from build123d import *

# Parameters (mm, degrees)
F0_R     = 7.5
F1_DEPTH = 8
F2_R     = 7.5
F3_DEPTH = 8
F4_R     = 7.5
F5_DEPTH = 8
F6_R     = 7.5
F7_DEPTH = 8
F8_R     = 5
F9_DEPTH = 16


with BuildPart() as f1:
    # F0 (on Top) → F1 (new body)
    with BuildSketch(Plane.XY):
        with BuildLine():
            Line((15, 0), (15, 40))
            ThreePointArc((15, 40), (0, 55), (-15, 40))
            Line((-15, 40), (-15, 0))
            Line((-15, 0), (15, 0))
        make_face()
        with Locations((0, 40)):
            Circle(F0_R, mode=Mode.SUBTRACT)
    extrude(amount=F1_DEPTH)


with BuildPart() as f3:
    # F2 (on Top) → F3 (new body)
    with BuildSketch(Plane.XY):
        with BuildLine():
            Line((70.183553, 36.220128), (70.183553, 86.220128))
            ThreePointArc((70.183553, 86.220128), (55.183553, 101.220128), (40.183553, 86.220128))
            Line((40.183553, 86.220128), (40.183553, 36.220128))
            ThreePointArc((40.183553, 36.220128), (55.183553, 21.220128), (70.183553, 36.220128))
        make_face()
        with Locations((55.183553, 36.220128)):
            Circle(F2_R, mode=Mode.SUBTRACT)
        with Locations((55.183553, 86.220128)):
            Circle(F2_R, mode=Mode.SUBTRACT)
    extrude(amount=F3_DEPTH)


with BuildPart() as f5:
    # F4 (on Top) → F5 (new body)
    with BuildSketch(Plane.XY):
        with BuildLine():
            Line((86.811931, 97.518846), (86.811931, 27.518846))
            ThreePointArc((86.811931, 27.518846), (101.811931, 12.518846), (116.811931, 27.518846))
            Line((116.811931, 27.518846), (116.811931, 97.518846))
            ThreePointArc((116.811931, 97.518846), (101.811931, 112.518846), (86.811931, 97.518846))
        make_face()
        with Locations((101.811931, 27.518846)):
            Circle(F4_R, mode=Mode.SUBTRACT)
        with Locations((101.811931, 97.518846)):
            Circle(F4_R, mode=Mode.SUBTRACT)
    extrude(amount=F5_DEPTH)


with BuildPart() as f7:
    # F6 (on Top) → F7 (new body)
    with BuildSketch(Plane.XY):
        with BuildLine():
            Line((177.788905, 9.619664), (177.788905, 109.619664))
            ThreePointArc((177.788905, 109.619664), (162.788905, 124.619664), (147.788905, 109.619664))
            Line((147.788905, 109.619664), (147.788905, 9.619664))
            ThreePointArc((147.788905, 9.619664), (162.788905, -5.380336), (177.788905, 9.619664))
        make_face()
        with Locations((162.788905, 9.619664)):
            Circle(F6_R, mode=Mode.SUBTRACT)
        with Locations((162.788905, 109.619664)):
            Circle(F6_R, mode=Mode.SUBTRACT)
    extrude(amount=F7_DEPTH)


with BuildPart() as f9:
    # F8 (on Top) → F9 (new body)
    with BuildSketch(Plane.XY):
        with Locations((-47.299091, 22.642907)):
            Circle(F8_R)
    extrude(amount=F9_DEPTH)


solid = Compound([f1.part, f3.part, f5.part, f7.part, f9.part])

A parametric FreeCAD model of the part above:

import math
import FreeCAD as App
import Part
import Sketcher

V = App.Vector

doc = App.newDocument("Part")
body = doc.addObject("PartDesign::Body", "Body")

sketch1 = body.newObject("Sketcher::SketchObject", "Sketch")
sketch1.AttachmentSupport = (doc.getObject("XY_Plane"), [""])
sketch1.MapMode = "FlatFace"
sketch1.addGeometry([
    Part.LineSegment(V(15, 0, 0), V(15, 40, 0)),
    Part.ArcOfCircle(Part.Circle(V(0, 40, 0), V(0, 0, 1), 15), math.radians(0), math.radians(180)),
    Part.LineSegment(V(-15, 40, 0), V(-15, 0, 0)),
    Part.LineSegment(V(-15, 0, 0), V(15, 0, 0)),
    Part.Circle(V(0, 40, 0), V(0, 0, 1), 8),
], False)
sketch1.addConstraint([
    Sketcher.Constraint("Tangent", 0, 2, 1, 1),
    Sketcher.Constraint("Tangent", 1, 2, 2, 1),
    Sketcher.Constraint("Coincident", 2, 2, 3, 1),
    Sketcher.Constraint("Coincident", 3, 2, 0, 1),
    Sketcher.Constraint("Vertical", 0),
    Sketcher.Constraint("Vertical", 2),
    Sketcher.Constraint("Horizontal", 3),
    Sketcher.Constraint("Coincident", 4, 3, 1, 3),
    Sketcher.Constraint("Symmetric", 2, 2, 3, 2, -1, 1),
    Sketcher.Constraint("Diameter", 4, 15.0),
    Sketcher.Constraint("Radius", 1, 15.0),
    Sketcher.Constraint("DistanceY", 0, 1, 0, 2, 40.0),
])
pad1 = body.newObject("PartDesign::Pad", "Pad")
pad1.Profile = sketch1
pad1.Length = 8
body2 = doc.addObject("PartDesign::Body", "Body001")

sketch2 = body2.newObject("Sketcher::SketchObject", "Sketch001")
sketch2.AttachmentSupport = (doc.getObject("XY_Plane001"), [""])
sketch2.MapMode = "FlatFace"
sketch2.addGeometry([
    Part.LineSegment(V(70, 36, 0), V(70, 86, 0)),
    Part.ArcOfCircle(Part.Circle(V(55, 86, 0), V(0, 0, 1), 15), math.radians(0), math.radians(180)),
    Part.LineSegment(V(40, 86, 0), V(40, 36, 0)),
    Part.ArcOfCircle(Part.Circle(V(55, 36, 0), V(0, 0, 1), 15), math.radians(180), math.radians(360)),
    Part.Circle(V(55, 36, 0), V(0, 0, 1), 8),
    Part.Circle(V(55, 86, 0), V(0, 0, 1), 8),
], False)
sketch2.addConstraint([
    Sketcher.Constraint("Tangent", 0, 2, 1, 1),
    Sketcher.Constraint("Tangent", 1, 2, 2, 1),
    Sketcher.Constraint("Tangent", 2, 2, 3, 1),
    Sketcher.Constraint("Tangent", 3, 2, 0, 1),
    Sketcher.Constraint("Vertical", 0),
    Sketcher.Constraint("Vertical", 2),
    Sketcher.Constraint("Coincident", 4, 3, 3, 3),
    Sketcher.Constraint("Coincident", 5, 3, 1, 3),
    Sketcher.Constraint("Equal", 4, 5),
    Sketcher.Constraint("Diameter", 4, 15.0),
    Sketcher.Constraint("Radius", 1, 15.0),
    Sketcher.Constraint("DistanceY", 0, 1, 0, 2, 50.0),
    Sketcher.Constraint("DistanceY", -1, 1, 1, 3, 86.220128),
    Sketcher.Constraint("DistanceX", -1, 1, 1, 3, 55.183553),
])
pad2 = body2.newObject("PartDesign::Pad", "Pad001")
pad2.Profile = sketch2
pad2.Length = 8
body3 = doc.addObject("PartDesign::Body", "Body002")

sketch3 = body3.newObject("Sketcher::SketchObject", "Sketch002")
sketch3.AttachmentSupport = (doc.getObject("XY_Plane002"), [""])
sketch3.MapMode = "FlatFace"
sketch3.addGeometry([
    Part.LineSegment(V(87, 98, 0), V(87, 28, 0)),
    Part.ArcOfCircle(Part.Circle(V(102, 28, 0), V(0, 0, 1), 15), math.radians(180), math.radians(360)),
    Part.LineSegment(V(117, 28, 0), V(117, 98, 0)),
    Part.ArcOfCircle(Part.Circle(V(102, 98, 0), V(0, 0, 1), 15), math.radians(0), math.radians(180)),
    Part.Circle(V(102, 28, 0), V(0, 0, 1), 8),
    Part.Circle(V(102, 98, 0), V(0, 0, 1), 8),
], False)
sketch3.addConstraint([
    Sketcher.Constraint("Tangent", 0, 2, 1, 1),
    Sketcher.Constraint("Tangent", 1, 2, 2, 1),
    Sketcher.Constraint("Tangent", 2, 2, 3, 1),
    Sketcher.Constraint("Tangent", 3, 2, 0, 1),
    Sketcher.Constraint("Vertical", 0),
    Sketcher.Constraint("Vertical", 2),
    Sketcher.Constraint("Coincident", 4, 3, 1, 3),
    Sketcher.Constraint("Coincident", 5, 3, 3, 3),
    Sketcher.Constraint("Equal", 4, 5),
    Sketcher.Constraint("Diameter", 4, 15.0),
    Sketcher.Constraint("Radius", 1, 15.0),
    Sketcher.Constraint("DistanceY", 0, 2, 0, 1, 70.0),
    Sketcher.Constraint("DistanceX", -1, 1, 1, 3, 101.811931),
    Sketcher.Constraint("DistanceY", -1, 1, 1, 3, 27.518846),
])
pad3 = body3.newObject("PartDesign::Pad", "Pad002")
pad3.Profile = sketch3
pad3.Length = 8
body4 = doc.addObject("PartDesign::Body", "Body003")

sketch4 = body4.newObject("Sketcher::SketchObject", "Sketch003")
sketch4.AttachmentSupport = (doc.getObject("XY_Plane003"), [""])
sketch4.MapMode = "FlatFace"
sketch4.addGeometry([
    Part.LineSegment(V(178, 10, 0), V(178, 110, 0)),
    Part.ArcOfCircle(Part.Circle(V(163, 110, 0), V(0, 0, 1), 15), math.radians(0), math.radians(180)),
    Part.LineSegment(V(148, 110, 0), V(148, 10, 0)),
    Part.ArcOfCircle(Part.Circle(V(163, 10, 0), V(0, 0, 1), 15), math.radians(180), math.radians(360)),
    Part.Circle(V(163, 10, 0), V(0, 0, 1), 8),
    Part.Circle(V(163, 110, 0), V(0, 0, 1), 8),
], False)
sketch4.addConstraint([
    Sketcher.Constraint("Tangent", 0, 2, 1, 1),
    Sketcher.Constraint("Tangent", 1, 2, 2, 1),
    Sketcher.Constraint("Tangent", 2, 2, 3, 1),
    Sketcher.Constraint("Tangent", 3, 2, 0, 1),
    Sketcher.Constraint("Vertical", 0),
    Sketcher.Constraint("Vertical", 2),
    Sketcher.Constraint("Coincident", 4, 3, 3, 3),
    Sketcher.Constraint("Coincident", 5, 3, 1, 3),
    Sketcher.Constraint("Equal", 4, 5),
    Sketcher.Constraint("Diameter", 4, 15.0),
    Sketcher.Constraint("Radius", 1, 15.0),
    Sketcher.Constraint("DistanceY", 0, 1, 0, 2, 100.0),
    Sketcher.Constraint("DistanceX", -1, 1, 1, 3, 162.788905),
    Sketcher.Constraint("DistanceY", -1, 1, 1, 3, 109.619664),
])
pad4 = body4.newObject("PartDesign::Pad", "Pad003")
pad4.Profile = sketch4
pad4.Length = 8
body5 = doc.addObject("PartDesign::Body", "Body004")

sketch5 = body5.newObject("Sketcher::SketchObject", "Sketch004")
sketch5.AttachmentSupport = (doc.getObject("XY_Plane004"), [""])
sketch5.MapMode = "FlatFace"
sketch5.addGeometry(Part.Circle(V(-47, 23, 0), V(0, 0, 1), 5), False)
sketch5.addConstraint([
    Sketcher.Constraint("Diameter", 0, 10.0),
    Sketcher.Constraint("DistanceX", 0, 3, -1, 1, 47.299091),
    Sketcher.Constraint("DistanceY", -1, 1, 0, 3, 22.642907),
])
pad5 = body5.newObject("PartDesign::Pad", "Pad004")
pad5.Profile = sketch5
pad5.Length = 16

doc.recompute()
